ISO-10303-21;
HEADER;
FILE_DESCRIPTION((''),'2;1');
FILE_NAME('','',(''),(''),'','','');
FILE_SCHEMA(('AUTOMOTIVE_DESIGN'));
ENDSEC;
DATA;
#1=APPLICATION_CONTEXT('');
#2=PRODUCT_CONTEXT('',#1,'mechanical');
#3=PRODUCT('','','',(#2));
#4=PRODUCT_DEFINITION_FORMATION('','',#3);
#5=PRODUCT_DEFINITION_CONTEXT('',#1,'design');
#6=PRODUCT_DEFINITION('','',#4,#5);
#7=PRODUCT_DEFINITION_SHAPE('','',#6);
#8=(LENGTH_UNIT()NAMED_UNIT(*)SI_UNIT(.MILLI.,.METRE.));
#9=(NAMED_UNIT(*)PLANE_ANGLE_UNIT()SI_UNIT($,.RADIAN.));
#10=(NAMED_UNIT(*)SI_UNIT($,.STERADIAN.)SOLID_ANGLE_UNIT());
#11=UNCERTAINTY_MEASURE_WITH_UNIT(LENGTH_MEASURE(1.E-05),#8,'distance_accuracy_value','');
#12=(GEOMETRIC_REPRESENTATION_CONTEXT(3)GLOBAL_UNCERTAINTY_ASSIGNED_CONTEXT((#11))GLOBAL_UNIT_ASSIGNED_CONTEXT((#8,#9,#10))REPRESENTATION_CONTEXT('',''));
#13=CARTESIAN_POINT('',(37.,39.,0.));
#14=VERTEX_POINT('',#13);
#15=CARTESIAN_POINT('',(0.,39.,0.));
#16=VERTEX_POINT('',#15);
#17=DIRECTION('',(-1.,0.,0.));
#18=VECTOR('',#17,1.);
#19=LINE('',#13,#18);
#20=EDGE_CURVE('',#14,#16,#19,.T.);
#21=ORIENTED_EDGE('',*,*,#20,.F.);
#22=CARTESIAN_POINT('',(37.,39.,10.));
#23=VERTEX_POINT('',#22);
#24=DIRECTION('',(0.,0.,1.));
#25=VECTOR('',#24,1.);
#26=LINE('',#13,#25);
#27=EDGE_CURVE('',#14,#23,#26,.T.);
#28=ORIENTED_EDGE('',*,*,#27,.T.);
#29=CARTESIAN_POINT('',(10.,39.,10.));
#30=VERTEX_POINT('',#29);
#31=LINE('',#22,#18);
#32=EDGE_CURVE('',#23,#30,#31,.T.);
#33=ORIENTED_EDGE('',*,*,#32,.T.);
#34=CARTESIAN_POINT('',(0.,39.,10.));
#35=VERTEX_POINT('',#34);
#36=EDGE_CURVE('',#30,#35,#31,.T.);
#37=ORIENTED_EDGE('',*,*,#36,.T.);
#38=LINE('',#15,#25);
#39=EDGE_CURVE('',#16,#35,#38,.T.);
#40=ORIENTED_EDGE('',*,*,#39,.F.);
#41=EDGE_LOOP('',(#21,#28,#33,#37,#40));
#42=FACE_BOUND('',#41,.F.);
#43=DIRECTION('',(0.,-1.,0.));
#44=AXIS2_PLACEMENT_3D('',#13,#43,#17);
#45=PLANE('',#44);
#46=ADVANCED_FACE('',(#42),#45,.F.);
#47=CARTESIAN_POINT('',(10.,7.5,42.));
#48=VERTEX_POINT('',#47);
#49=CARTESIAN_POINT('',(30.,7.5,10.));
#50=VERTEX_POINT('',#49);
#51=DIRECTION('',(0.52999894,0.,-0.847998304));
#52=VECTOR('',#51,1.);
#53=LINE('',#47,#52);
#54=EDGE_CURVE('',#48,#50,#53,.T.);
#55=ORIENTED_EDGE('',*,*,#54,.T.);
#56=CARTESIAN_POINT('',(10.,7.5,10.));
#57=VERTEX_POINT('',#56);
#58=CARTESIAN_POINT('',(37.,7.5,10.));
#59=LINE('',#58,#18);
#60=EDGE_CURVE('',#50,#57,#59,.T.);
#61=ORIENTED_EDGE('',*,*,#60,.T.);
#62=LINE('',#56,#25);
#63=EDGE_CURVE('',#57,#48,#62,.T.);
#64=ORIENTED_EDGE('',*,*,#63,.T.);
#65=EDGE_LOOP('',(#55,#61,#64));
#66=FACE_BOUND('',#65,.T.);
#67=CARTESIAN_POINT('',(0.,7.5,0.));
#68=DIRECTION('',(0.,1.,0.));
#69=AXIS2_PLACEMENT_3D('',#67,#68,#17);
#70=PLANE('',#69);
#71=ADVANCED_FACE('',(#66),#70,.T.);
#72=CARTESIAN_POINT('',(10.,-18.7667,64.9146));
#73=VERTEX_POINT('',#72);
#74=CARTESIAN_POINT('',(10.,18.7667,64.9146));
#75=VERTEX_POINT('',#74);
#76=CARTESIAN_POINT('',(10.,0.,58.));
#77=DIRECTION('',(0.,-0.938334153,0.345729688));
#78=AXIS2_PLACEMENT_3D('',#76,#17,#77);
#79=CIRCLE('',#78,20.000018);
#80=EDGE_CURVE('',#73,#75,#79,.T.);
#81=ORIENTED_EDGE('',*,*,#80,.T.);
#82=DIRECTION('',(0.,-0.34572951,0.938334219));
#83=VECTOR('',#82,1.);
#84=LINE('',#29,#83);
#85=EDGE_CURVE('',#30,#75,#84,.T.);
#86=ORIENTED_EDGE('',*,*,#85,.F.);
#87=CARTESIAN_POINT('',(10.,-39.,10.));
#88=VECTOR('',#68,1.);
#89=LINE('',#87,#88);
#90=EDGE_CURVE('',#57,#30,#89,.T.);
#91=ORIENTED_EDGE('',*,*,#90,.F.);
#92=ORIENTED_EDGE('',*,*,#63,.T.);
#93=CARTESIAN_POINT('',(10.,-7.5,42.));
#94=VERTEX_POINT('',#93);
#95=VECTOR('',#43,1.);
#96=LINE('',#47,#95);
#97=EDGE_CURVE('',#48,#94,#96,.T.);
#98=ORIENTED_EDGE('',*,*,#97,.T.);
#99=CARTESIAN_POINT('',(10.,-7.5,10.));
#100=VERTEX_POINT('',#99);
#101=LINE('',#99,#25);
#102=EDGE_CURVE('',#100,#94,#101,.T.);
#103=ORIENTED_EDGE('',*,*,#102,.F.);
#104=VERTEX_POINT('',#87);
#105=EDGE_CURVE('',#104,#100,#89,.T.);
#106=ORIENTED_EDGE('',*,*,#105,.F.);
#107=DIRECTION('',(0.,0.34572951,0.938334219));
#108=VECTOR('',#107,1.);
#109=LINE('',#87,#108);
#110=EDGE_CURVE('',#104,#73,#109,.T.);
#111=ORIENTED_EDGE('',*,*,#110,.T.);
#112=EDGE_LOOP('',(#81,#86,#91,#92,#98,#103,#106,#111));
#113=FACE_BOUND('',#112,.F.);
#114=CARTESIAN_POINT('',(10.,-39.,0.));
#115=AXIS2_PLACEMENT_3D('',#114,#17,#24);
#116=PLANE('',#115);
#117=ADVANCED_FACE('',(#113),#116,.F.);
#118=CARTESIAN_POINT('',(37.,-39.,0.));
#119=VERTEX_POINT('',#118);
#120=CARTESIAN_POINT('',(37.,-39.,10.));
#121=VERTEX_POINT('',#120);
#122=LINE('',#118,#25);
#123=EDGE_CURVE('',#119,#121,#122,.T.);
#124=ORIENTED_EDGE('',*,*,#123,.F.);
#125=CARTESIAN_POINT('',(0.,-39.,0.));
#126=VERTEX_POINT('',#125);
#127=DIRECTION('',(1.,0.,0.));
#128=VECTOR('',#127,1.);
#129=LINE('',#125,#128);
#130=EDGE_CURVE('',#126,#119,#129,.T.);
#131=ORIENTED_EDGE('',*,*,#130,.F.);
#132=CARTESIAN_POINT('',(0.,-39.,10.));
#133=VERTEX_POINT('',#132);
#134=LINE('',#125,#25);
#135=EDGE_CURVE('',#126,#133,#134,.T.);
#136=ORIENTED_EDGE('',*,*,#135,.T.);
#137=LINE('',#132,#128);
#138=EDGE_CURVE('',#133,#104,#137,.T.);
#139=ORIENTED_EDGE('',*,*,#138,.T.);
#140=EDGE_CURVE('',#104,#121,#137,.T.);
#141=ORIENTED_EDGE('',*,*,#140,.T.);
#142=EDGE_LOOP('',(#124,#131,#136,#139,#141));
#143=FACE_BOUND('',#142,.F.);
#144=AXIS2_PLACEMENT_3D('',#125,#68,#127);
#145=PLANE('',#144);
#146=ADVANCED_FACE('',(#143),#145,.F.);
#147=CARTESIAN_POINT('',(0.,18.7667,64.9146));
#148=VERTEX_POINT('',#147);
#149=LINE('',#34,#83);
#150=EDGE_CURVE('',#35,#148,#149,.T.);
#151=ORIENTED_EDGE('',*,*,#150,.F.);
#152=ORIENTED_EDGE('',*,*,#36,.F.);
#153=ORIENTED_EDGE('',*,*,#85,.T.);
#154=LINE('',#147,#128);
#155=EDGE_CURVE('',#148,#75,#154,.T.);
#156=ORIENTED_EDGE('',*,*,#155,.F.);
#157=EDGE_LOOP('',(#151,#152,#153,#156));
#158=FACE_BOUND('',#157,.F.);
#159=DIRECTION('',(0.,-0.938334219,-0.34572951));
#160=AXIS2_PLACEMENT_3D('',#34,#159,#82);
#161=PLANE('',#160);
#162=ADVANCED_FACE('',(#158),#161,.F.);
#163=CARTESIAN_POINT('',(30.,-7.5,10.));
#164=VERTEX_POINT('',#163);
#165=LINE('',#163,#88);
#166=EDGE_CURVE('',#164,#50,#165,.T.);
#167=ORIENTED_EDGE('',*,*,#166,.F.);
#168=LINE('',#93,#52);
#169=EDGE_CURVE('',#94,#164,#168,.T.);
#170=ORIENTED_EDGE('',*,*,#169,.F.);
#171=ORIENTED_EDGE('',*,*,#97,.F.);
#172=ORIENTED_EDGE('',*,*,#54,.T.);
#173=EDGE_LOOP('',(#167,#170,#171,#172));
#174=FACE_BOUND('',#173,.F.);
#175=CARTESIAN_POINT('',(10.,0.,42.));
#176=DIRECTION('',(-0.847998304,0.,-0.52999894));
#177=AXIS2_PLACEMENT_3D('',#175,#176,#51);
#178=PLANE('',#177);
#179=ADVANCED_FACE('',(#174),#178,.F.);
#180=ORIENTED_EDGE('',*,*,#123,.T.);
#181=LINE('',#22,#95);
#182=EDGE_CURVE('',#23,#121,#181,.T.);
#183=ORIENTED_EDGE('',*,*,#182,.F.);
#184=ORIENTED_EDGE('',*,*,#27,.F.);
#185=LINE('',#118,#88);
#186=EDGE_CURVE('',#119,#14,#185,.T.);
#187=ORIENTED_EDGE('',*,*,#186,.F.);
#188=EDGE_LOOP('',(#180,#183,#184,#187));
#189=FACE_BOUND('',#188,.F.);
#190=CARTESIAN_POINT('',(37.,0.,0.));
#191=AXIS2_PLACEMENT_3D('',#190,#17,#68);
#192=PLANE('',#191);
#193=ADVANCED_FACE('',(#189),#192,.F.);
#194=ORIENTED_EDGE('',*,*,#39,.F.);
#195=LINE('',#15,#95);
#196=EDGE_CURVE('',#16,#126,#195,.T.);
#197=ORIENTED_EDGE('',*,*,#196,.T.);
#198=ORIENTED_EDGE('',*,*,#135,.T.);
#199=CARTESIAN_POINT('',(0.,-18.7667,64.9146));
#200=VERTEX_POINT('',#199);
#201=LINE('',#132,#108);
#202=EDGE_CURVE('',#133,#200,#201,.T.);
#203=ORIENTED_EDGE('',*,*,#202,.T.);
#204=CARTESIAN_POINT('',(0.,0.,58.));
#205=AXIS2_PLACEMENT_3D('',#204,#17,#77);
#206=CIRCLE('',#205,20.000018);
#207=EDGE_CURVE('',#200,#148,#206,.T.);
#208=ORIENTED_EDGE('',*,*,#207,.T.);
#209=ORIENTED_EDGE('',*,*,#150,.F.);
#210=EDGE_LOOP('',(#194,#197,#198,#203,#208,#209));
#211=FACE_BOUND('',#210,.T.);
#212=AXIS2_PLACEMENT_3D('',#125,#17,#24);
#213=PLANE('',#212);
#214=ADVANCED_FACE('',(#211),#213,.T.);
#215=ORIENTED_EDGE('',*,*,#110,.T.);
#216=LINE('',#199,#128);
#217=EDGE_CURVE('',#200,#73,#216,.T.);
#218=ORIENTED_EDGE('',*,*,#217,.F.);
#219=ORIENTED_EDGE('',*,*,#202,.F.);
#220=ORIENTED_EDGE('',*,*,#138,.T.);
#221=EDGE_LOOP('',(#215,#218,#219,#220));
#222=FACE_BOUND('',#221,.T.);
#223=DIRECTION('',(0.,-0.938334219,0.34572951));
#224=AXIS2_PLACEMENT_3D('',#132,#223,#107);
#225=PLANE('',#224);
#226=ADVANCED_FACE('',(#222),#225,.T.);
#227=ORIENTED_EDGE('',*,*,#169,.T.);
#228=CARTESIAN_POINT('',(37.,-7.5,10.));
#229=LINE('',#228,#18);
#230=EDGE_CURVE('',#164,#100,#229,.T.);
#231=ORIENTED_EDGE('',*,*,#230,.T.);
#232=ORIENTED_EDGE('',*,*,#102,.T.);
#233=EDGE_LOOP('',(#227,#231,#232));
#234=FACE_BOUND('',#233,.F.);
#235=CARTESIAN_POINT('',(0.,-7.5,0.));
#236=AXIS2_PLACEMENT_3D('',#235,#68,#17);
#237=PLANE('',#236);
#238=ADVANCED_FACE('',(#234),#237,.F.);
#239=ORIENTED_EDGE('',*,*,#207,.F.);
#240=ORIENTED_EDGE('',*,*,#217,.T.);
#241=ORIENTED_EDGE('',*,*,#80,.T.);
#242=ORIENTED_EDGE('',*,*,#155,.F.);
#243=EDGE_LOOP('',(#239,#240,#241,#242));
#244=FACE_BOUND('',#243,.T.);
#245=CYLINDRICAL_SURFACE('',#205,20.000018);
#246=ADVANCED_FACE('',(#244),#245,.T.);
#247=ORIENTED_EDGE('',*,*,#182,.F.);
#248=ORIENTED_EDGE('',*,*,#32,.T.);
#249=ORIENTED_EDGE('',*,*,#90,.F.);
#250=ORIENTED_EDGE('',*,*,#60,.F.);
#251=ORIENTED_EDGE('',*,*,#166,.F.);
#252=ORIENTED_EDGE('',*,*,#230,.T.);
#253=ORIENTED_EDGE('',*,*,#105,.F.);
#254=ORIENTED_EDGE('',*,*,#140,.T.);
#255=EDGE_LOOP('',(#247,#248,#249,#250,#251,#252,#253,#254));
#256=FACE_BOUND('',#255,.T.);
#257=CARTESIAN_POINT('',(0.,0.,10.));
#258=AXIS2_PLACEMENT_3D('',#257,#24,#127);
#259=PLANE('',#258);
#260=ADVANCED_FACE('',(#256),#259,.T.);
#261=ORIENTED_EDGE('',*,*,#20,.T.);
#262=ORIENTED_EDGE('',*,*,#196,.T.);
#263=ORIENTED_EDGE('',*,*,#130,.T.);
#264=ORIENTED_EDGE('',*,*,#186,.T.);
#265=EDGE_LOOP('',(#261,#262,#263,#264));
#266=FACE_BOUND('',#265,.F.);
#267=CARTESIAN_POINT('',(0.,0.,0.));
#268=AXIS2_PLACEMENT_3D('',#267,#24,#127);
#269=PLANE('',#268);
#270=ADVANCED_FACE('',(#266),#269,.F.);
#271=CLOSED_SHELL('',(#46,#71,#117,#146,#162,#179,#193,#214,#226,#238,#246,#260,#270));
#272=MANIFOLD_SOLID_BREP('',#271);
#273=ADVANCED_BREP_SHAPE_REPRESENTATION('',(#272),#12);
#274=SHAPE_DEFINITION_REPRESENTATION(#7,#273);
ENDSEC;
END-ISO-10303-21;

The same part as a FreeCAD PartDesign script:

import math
import FreeCAD as App
import Part
import Sketcher
from FreeCAD import Vector

doc = App.newDocument("Part")
body = doc.addObject("PartDesign::Body", "Body")

# Sketch on XY plane
sketch1 = doc.addObject("Sketcher::SketchObject", "Sketch")
body.addObject(sketch1)
sketch1.AttachmentSupport = (doc.XY_Plane, [""])
sketch1.MapMode = "FlatFace"
sketch1.addGeometry(Part.LineSegment(Vector(37, 39, 0), Vector(0, 39, 0)), False)
sketch1.addGeometry(Part.LineSegment(Vector(0, 39, 0), Vector(0, -39, 0)), False)
sketch1.addGeometry(Part.LineSegment(Vector(0, -39, 0), Vector(37, -39, 0)), False)
sketch1.addGeometry(Part.LineSegment(Vector(37, -39, 0), Vector(37, 39, 0)), False)
sketch1.addConstraint(Sketcher.Constraint("Coincident", 0, 2, 1, 1))
sketch1.addConstraint(Sketcher.Constraint("Coincident", 1, 2, 2, 1))
sketch1.addConstraint(Sketcher.Constraint("Coincident", 2, 2, 3, 1))
sketch1.addConstraint(Sketcher.Constraint("Coincident", 3, 2, 0, 1))
sketch1.addConstraint(Sketcher.Constraint("Horizontal", 0))
sketch1.addConstraint(Sketcher.Constraint("Vertical", 1))
sketch1.addConstraint(Sketcher.Constraint("Horizontal", 2))
sketch1.addConstraint(Sketcher.Constraint("Vertical", 3))
sketch1.addConstraint(Sketcher.Constraint("Symmetric", 0, 2, 1, 2, -1, 1))
sketch1.addConstraint(Sketcher.Constraint("DistanceX", 0, 2, 0, 1, 37.0))
sketch1.addConstraint(Sketcher.Constraint("DistanceY", 1, 2, 1, 1, 78.0))
pad1 = doc.addObject("PartDesign::Pad", "Pad")
body.addObject(pad1)
pad1.Profile = sketch1
pad1.Length = 10

# Sketch on YZ plane
sketch2 = doc.addObject("Sketcher::SketchObject", "Sketch001")
body.addObject(sketch2)
sketch2.AttachmentSupport = (doc.YZ_Plane, [""])
sketch2.MapMode = "FlatFace"
sketch2.addGeometry(Part.LineSegment(Vector(39, 10, 0), Vector(-39, 10, 0)), False)
sketch2.addGeometry(Part.LineSegment(Vector(-39, 10, 0), Vector(-18.7667, 64.9146, 0)), False)
sketch2.addGeometry(Part.ArcOfCircle(Part.Circle(Vector(0, 58, 0), Vector(0, 0, 1), 20.000018), math.radians(20.226345), math.radians(159.773655)), False)
sketch2.addGeometry(Part.LineSegment(Vector(18.7667, 64.9146, 0), Vector(39, 10, 0)), False)
sketch2.addConstraint(Sketcher.Constraint("Coincident", 0, 2, 1, 1))
sketch2.addConstraint(Sketcher.Constraint("Tangent", 1, 2, 2, 2))
sketch2.addConstraint(Sketcher.Constraint("Tangent", 2, 1, 3, 1))
sketch2.addConstraint(Sketcher.Constraint("Coincident", 3, 2, 0, 1))
sketch2.addConstraint(Sketcher.Constraint("Horizontal", 0))
sketch2.addConstraint(Sketcher.Constraint("Symmetric", 1, 2, 2, 1, -2))
sketch2.addConstraint(Sketcher.Constraint("Radius", 2, 20.0))
sketch2.addConstraint(Sketcher.Constraint("DistanceY", 0, 2, 2, 3, 48.0))
sketch2.addConstraint(Sketcher.Constraint("DistanceX", 0, 2, 0, 1, 78.0))
sketch2.addConstraint(Sketcher.Constraint("DistanceY", -1, 1, 2, 3, 58.0))
pad2 = doc.addObject("PartDesign::Pad", "Pad001")
body.addObject(pad2)
pad2.Profile = sketch2
pad2.Length = 10

# Sketch on XZ plane
sketch3 = doc.addObject("Sketcher::SketchObject", "Sketch002")
body.addObject(sketch3)
sketch3.AttachmentSupport = (doc.XZ_Plane, [""])
sketch3.MapMode = "FlatFace"
sketch3.addGeometry(Part.LineSegment(Vector(10, 42, 0), Vector(30, 10, 0)), False)
sketch3.addGeometry(Part.LineSegment(Vector(30, 10, 0), Vector(10, 10, 0)), False)
sketch3.addGeometry(Part.LineSegment(Vector(10, 10, 0), Vector(10, 42, 0)), False)
sketch3.addConstraint(Sketcher.Constraint("Coincident", 0, 2, 1, 1))
sketch3.addConstraint(Sketcher.Constraint("Coincident", 1, 2, 2, 1))
sketch3.addConstraint(Sketcher.Constraint("Coincident", 2, 2, 0, 1))
sketch3.addConstraint(Sketcher.Constraint("Horizontal", 1))
sketch3.addConstraint(Sketcher.Constraint("Vertical", 2))
sketch3.addConstraint(Sketcher.Constraint("DistanceX", 1, 2, 1, 1, 20.0))
sketch3.addConstraint(Sketcher.Constraint("DistanceY", 2, 1, 2, 2, 32.0))
sketch3.addConstraint(Sketcher.Constraint("DistanceX", -1, 1, 0, 2, 30.0))
sketch3.addConstraint(Sketcher.Constraint("DistanceY", -1, 1, 0, 2, 10.0))
pad3 = doc.addObject("PartDesign::Pad", "Pad002")
body.addObject(pad3)
pad3.Profile = sketch3
pad3.Length = 15
pad3.Midplane = True

doc.recompute()
